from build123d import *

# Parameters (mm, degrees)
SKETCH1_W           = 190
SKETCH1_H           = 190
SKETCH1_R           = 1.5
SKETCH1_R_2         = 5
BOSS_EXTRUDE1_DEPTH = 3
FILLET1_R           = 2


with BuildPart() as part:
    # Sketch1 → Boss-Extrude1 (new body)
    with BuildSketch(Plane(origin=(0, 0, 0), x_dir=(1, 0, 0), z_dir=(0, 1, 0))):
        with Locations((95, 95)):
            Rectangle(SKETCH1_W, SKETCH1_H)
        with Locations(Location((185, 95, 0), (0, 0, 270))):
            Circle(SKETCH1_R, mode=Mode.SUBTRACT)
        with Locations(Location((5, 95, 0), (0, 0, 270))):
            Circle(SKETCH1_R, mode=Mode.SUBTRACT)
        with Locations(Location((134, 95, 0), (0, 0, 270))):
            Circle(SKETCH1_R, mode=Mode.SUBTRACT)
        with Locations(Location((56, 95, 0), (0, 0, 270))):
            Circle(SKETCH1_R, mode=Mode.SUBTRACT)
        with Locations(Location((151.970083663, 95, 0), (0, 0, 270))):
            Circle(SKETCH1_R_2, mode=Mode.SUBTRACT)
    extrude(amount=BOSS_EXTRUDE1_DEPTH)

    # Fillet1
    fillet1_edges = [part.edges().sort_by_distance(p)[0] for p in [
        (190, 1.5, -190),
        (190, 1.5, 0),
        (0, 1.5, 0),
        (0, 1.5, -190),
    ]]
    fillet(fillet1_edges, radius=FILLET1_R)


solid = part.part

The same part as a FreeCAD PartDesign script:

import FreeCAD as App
import Part
import Sketcher

V = App.Vector


def edges_at(feature, points):
    """Names of the edges that pass closest to the given points."""
    edges = feature.Shape.Edges
    near = lambda p: min(range(len(edges)), key=lambda i: edges[i].distToShape(Part.Vertex(*p))[0])
    return sorted({f"Edge{near(p) + 1}" for p in points})

doc = App.newDocument("Part")
body = doc.addObject("PartDesign::Body", "Body")

sketch1 = body.newObject("Sketcher::SketchObject", "Sketch")
sketch1.AttachmentSupport = (doc.getObject("XZ_Plane"), [""])
sketch1.MapMode = "FlatFace"
sketch1.addGeometry([
    Part.LineSegment(V(0, -190, 0), V(0, 0, 0)),
    Part.LineSegment(V(0, 0, 0), V(190, 0, 0)),
    Part.LineSegment(V(190, 0, 0), V(190, -190, 0)),
    Part.LineSegment(V(190, -190, 0), V(0, -190, 0)),
    Part.Circle(V(5, -95, 0), V(0, 0, 1), 1.5),
    Part.Circle(V(56, -95, 0), V(0, 0, 1), 1.5),
    Part.Circle(V(134, -95, 0), V(0, 0, 1), 1.5),
    Part.Circle(V(152, -95, 0), V(0, 0, 1), 5),
    Part.Circle(V(185, -95, 0), V(0, 0, 1), 1.5),
], False)
sketch1.addConstraint([
    Sketcher.Constraint("Coincident", 0, 2, 1, 1),
    Sketcher.Constraint("Coincident", 1, 2, 2, 1),
    Sketcher.Constraint("Coincident", 2, 2, 3, 1),
    Sketcher.Constraint("Coincident", 3, 2, 0, 1),
    Sketcher.Constraint("Vertical", 0),
    Sketcher.Constraint("Horizontal", 1),
    Sketcher.Constraint("Vertical", 2),
    Sketcher.Constraint("Horizontal", 3),
    Sketcher.Constraint("Coincident", 0, 2, -1, 1),
    Sketcher.Constraint("Equal", 4, 5),
    Sketcher.Constraint("Equal", 5, 6),
    Sketcher.Constraint("Equal", 6, 8),
    Sketcher.Constraint("Horizontal", 4, 3, 5, 3),
    Sketcher.Constraint("Horizontal", 5, 3, 6, 3),
    Sketcher.Constraint("Horizontal", 6, 3, 7, 3),
    Sketcher.Constraint("Horizontal", 7, 3, 8, 3),
    Sketcher.Constraint("Equal", 3, 0),
    Sketcher.Constraint("Diameter", 4, 3.0),
    Sketcher.Constraint("Diameter", 7, 10.0),
    Sketcher.Constraint("DistanceX", 1, 1, 1, 2, 190.0),
    Sketcher.Constraint("DistanceX", -1, 1, 4, 3, 5.0),
    Sketcher.Constraint("DistanceY", 4, 3, -1, 1, 95.0),
    Sketcher.Constraint("DistanceX", -1, 1, 5, 3, 56.0),
    Sketcher.Constraint("DistanceX", -1, 1, 6, 3, 134.0),
    Sketcher.Constraint("DistanceX", -1, 1, 8, 3, 185.0),
    Sketcher.Constraint("DistanceX", -1, 1, 7, 3, 151.970084),
])
pad1 = body.newObject("PartDesign::Pad", "Pad")
pad1.Profile = sketch1
pad1.Length = 3
pad1.Reversed = True
doc.recompute()

fillet = body.newObject("PartDesign::Fillet", "Fillet")
fillet.Base = (pad1, edges_at(pad1, [
    (190, 1.5, -190),
    (190, 1.5, 0),
    (0, 1.5, 0),
    (0, 1.5, -190),
]))
fillet.Radius = 2

doc.recompute()
